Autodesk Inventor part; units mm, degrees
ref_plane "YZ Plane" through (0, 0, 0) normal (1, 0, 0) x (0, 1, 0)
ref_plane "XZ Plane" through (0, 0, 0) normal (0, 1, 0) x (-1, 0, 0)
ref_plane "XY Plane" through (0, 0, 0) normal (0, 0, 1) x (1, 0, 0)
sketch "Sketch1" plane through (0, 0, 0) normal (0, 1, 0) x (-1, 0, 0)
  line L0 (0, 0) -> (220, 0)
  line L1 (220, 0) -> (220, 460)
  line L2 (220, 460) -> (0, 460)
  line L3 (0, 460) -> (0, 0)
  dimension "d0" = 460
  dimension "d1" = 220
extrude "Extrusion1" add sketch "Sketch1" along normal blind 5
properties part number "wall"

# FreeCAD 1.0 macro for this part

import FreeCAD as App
import Part
import Sketcher

V = App.Vector


def add_polygon(sketch, points):
    """Adds a closed chain of lines whose ends are joined by coincident constraints."""
    first, n = sketch.GeometryCount, len(points)
    for a, b in zip(points, points[1:] + points[:1]):
        sketch.addGeometry(Part.LineSegment(App.Vector(*a, 0), App.Vector(*b, 0)), False)
    for i in range(n):
        sketch.addConstraint(Sketcher.Constraint("Coincident", first + i, 2, first + (i + 1) % n, 1))

doc = App.newDocument("Part")
body = doc.addObject("PartDesign::Body", "Body")

# Sketch on XZ plane
sketch1 = body.newObject("Sketcher::SketchObject", "Sketch")
sketch1.AttachmentSupport = (doc.getObject("XZ_Plane"), [""])
sketch1.MapMode = "FlatFace"
add_polygon(sketch1, [(0, 460), (0, 0), (-220, 0), (-220, 460)])  # lines 0-3
sketch1.addConstraint([
    Sketcher.Constraint("Vertical", 0),
    Sketcher.Constraint("Horizontal", 1),
    Sketcher.Constraint("Vertical", 2),
    Sketcher.Constraint("Horizontal", 3),
    Sketcher.Constraint("Coincident", 0, 2, -1, 1),
    Sketcher.Constraint("DistanceX", 1, 2, 1, 1, 220.0),
    Sketcher.Constraint("DistanceY", 0, 2, 0, 1, 460.0),
])
pad1 = body.newObject("PartDesign::Pad", "Pad")
pad1.Profile = sketch1
pad1.Length = 5
pad1.Reversed = True

doc.recompute()
